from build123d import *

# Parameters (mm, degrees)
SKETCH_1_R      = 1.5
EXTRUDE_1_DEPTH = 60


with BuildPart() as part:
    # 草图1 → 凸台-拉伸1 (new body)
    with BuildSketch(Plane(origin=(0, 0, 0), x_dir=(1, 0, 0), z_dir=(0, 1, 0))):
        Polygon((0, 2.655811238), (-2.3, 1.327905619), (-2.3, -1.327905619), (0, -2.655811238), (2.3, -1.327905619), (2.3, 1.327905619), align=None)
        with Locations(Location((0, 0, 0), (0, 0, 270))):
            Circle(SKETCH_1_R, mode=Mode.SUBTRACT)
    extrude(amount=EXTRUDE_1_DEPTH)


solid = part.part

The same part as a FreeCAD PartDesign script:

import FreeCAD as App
import Part
import Sketcher

V = App.Vector
Q = App.Units.Quantity

doc = App.newDocument("Part")
body = doc.addObject("PartDesign::Body", "Body")

# Sketch on XZ plane
sketch1 = doc.addObject("Sketcher::SketchObject", "Sketch")
body.addObject(sketch1)
sketch1.AttachmentSupport = (doc.XZ_Plane, [""])
sketch1.MapMode = "FlatFace"
sketch1.addGeometry(Part.LineSegment(V(0, -2.7, 0), V(-2.3, -1.3, 0)), False)
sketch1.addGeometry(Part.LineSegment(V(-2.3, -1.3, 0), V(-2.3, 1.3, 0)), False)
sketch1.addGeometry(Part.LineSegment(V(-2.3, 1.3, 0), V(0, 2.7, 0)), False)
sketch1.addGeometry(Part.LineSegment(V(0, 2.7, 0), V(2.3, 1.3, 0)), False)
sketch1.addGeometry(Part.LineSegment(V(2.3, 1.3, 0), V(2.3, -1.3, 0)), False)
sketch1.addGeometry(Part.LineSegment(V(2.3, -1.3, 0), V(0, -2.7, 0)), False)
sketch1.addGeometry(Part.Circle(V(0, 0, 0), V(0, 0, 1), 1.5), False)
sketch1.addConstraint(Sketcher.Constraint("Coincident", 0, 2, 1, 1))
sketch1.addConstraint(Sketcher.Constraint("Coincident", 1, 2, 2, 1))
sketch1.addConstraint(Sketcher.Constraint("Coincident", 2, 2, 3, 1))
sketch1.addConstraint(Sketcher.Constraint("Coincident", 3, 2, 4, 1))
sketch1.addConstraint(Sketcher.Constraint("Coincident", 4, 2, 5, 1))
sketch1.addConstraint(Sketcher.Constraint("Coincident", 5, 2, 0, 1))
sketch1.addConstraint(Sketcher.Constraint("Vertical", 1))
sketch1.addConstraint(Sketcher.Constraint("Vertical", 4))
sketch1.addConstraint(Sketcher.Constraint("Coincident", 6, 3, -1, 1))
sketch1.addConstraint(Sketcher.Constraint("Symmetric", 0, 2, 3, 2, -1, 1))
sketch1.addConstraint(Sketcher.Constraint("Symmetric", 2, 2, 5, 2, -1, 1))
sketch1.addConstraint(Sketcher.Constraint("PointOnObject", 2, 2, -2))
sketch1.addConstraint(Sketcher.Constraint("Parallel", 2, 5))
sketch1.addConstraint(Sketcher.Constraint("Horizontal", 1, 2, 3, 2))
sketch1.addConstraint(Sketcher.Constraint("Diameter", 6, Q("3 mm")))
sketch1.addConstraint(Sketcher.Constraint("Angle", 0, Q("150 deg")))
sketch1.addConstraint(Sketcher.Constraint("DistanceX", 0, 2, -1, 1, Q("2.3 mm")))
sketch1.addConstraint(Sketcher.Constraint("DistanceY", 1, 1, 1, 2, Q("2.655811 mm")))
pad1 = doc.addObject("PartDesign::Pad", "Pad")
body.addObject(pad1)
pad1.Profile = sketch1
pad1.Length = 60
pad1.Reversed = True

doc.recompute()
